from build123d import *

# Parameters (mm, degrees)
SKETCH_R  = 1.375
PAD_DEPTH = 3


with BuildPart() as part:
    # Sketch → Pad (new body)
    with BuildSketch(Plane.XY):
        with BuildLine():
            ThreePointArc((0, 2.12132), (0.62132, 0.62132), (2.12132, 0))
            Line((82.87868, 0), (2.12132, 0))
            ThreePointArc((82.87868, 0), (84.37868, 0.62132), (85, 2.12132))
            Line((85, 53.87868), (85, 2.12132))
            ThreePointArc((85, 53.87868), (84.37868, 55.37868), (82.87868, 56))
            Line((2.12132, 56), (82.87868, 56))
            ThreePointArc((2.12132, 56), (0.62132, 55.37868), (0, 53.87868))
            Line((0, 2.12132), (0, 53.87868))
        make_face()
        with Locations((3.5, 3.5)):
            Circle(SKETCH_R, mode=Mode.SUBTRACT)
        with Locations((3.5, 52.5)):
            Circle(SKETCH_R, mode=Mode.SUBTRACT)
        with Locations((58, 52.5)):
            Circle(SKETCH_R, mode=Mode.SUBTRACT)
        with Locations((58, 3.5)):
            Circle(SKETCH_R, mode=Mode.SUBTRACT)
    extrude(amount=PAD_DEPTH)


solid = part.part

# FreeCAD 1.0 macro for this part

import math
import FreeCAD as App
import Part
import Sketcher
from FreeCAD import Vector
Q = App.Units.Quantity

doc = App.newDocument("Part")
body = doc.addObject("PartDesign::Body", "Body")

# Sketch on XY plane
sketch1 = body.newObject("Sketcher::SketchObject", "Sketch")
sketch1.AttachmentSupport = (doc.getObject("XY_Plane"), [""])
sketch1.MapMode = "FlatFace"
sketch1.addGeometry([
    Part.ArcOfCircle(Part.Circle(Vector(2.1, 2.1, 0), Vector(0, 0, 1), 2.1), math.radians(180), math.radians(270)),  # 0
    Part.LineSegment(Vector(2.1, 0, 0), Vector(82.9, 0, 0)),  # 1
    Part.ArcOfCircle(Part.Circle(Vector(82.9, 2.1, 0), Vector(0, 0, 1), 2.1), math.radians(-90), math.radians(0)),  # 2
    Part.LineSegment(Vector(85, 2.1, 0), Vector(85, 53.9, 0)),  # 3
    Part.ArcOfCircle(Part.Circle(Vector(82.9, 53.9, 0), Vector(0, 0, 1), 2.1), math.radians(0), math.radians(90)),  # 4
    Part.LineSegment(Vector(82.9, 56, 0), Vector(2.1, 56, 0)),  # 5
    Part.ArcOfCircle(Part.Circle(Vector(2.1, 53.9, 0), Vector(0, 0, 1), 2.1), math.radians(90), math.radians(180)),  # 6
    Part.LineSegment(Vector(0, 53.9, 0), Vector(0, 2.1, 0)),  # 7
    Part.Circle(Vector(3.5, 3.5, 0), Vector(0, 0, 1), 1.4),  # 8
    Part.Circle(Vector(58, 3.5, 0), Vector(0, 0, 1), 1.4),  # 9
    Part.Circle(Vector(3.5, 52.5, 0), Vector(0, 0, 1), 1.4),  # 10
    Part.Circle(Vector(58, 52.5, 0), Vector(0, 0, 1), 1.4),  # 11
], False)
sketch1.addConstraint([
    Sketcher.Constraint("Tangent", 0, 2, 1, 1),
    Sketcher.Constraint("Tangent", 1, 2, 2, 1),
    Sketcher.Constraint("Tangent", 2, 2, 3, 1),
    Sketcher.Constraint("Tangent", 3, 2, 4, 1),
    Sketcher.Constraint("Tangent", 4, 2, 5, 1),
    Sketcher.Constraint("Tangent", 5, 2, 6, 1),
    Sketcher.Constraint("Tangent", 6, 2, 7, 1),
    Sketcher.Constraint("Tangent", 7, 2, 0, 1),
    Sketcher.Constraint("Horizontal", 1),
    Sketcher.Constraint("Vertical", 3),
    Sketcher.Constraint("Horizontal", 5),
    Sketcher.Constraint("Vertical", 7),
    Sketcher.Constraint("Equal", 0, 2),
    Sketcher.Constraint("Equal", 2, 4),
    Sketcher.Constraint("Equal", 4, 6),
    Sketcher.Constraint("Equal", 8, 9),
    Sketcher.Constraint("Equal", 9, 10),
    Sketcher.Constraint("Equal", 10, 11),
    Sketcher.Constraint("PointOnObject", 0, 2, -1),
    Sketcher.Constraint("PointOnObject", 6, 2, -2),
    Sketcher.Constraint("Horizontal", 8, 3, 9, 3),
    Sketcher.Constraint("Horizontal", 10, 3, 11, 3),
    Sketcher.Constraint("Vertical", 8, 3, 10, 3),
    Sketcher.Constraint("Vertical", 9, 3, 11, 3),
    Sketcher.Constraint("Diameter", 8, Q("2.75 mm")),
    Sketcher.Constraint("DistanceX", -1, 1, 9, 3, Q("58 mm")),
    Sketcher.Constraint("DistanceX", -1, 1, 2, 2, Q("85 mm")),
    Sketcher.Constraint("DistanceY", -1, 1, 4, 2, Q("56 mm")),
    Sketcher.Constraint("DistanceY", 8, 3, 10, 3, Q("49 mm")),
    Sketcher.Constraint("DistanceX", -1, 1, 8, 3, Q("3.5 mm")),
    Sketcher.Constraint("DistanceY", -1, 1, 8, 3, Q("3.5 mm")),
    Sketcher.Constraint("Radius", 0, Q("2.121319 mm")),
])
pad1 = body.newObject("PartDesign::Pad", "Pad")
pad1.Profile = sketch1
pad1.Length = 3

doc.recompute()
